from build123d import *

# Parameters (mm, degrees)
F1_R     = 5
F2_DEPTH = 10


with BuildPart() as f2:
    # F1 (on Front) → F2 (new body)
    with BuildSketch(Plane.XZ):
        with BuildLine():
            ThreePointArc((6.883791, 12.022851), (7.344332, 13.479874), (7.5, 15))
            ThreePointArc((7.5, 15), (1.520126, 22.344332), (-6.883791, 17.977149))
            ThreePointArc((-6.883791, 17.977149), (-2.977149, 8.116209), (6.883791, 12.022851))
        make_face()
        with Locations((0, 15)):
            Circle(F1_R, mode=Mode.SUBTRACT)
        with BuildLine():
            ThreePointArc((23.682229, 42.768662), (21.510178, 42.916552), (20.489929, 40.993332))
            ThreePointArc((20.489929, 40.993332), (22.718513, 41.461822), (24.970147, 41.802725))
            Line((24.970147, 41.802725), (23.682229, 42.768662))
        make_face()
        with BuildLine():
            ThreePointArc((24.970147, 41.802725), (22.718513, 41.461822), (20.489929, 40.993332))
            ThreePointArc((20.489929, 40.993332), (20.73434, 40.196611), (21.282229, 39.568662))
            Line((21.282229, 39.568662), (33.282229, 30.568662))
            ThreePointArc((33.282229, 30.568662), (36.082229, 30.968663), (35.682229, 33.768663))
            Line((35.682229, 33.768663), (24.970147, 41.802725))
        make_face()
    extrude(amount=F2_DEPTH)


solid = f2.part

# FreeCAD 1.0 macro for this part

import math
import FreeCAD as App
import Part
import Sketcher

V = App.Vector
Q = App.Units.Quantity

doc = App.newDocument("Part")
body = doc.addObject("PartDesign::Body", "Body")
body.AllowCompound = True

sketch1 = body.newObject("Sketcher::SketchObject", "Sketch")
sketch1.AttachmentSupport = (doc.getObject("XZ_Plane"), [""])
sketch1.MapMode = "FlatFace"
sketch1.addGeometry([
    Part.ArcOfCircle(Part.Circle(V(0, 15, 0), V(0, 0, 1), 7.5), math.radians(-23), math.radians(0)),
    Part.ArcOfCircle(Part.Circle(V(0, 15, 0), V(0, 0, 1), 7.5), math.radians(0), math.radians(157)),
    Part.ArcOfCircle(Part.Circle(V(0, 15, 0), V(0, 0, 1), 7.5), math.radians(157), math.radians(337)),
    Part.Circle(V(0, 15, 0), V(0, 0, 1), 5),
    Part.ArcOfCircle(Part.Circle(V(22.5, 41.2, 0), V(0, 0, 1), 2), math.radians(53), math.radians(185)),
    Part.ArcOfCircle(Part.Circle(V(22.5, 41.2, 0), V(0, 0, 1), 2), math.radians(-175), math.radians(-127)),
    Part.LineSegment(V(21.3, 39.6, 0), V(33.3, 30.6, 0)),
    Part.ArcOfCircle(Part.Circle(V(34.5, 32.2, 0), V(0, 0, 1), 2), math.radians(-127), math.radians(53)),
    Part.LineSegment(V(35.7, 33.8, 0), V(25, 41.8, 0)),
    Part.LineSegment(V(25, 41.8, 0), V(23.7, 42.8, 0)),
], False)
sketch1.addConstraint([
    Sketcher.Constraint("Tangent", 0, 2, 1, 1),
    Sketcher.Constraint("Tangent", 1, 2, 2, 1),
    Sketcher.Constraint("Tangent", 2, 2, 0, 1),
    Sketcher.Constraint("Tangent", 4, 2, 5, 1),
    Sketcher.Constraint("Tangent", 5, 2, 6, 1),
    Sketcher.Constraint("Tangent", 6, 2, 7, 1),
    Sketcher.Constraint("Tangent", 7, 2, 8, 1),
    Sketcher.Constraint("Coincident", 8, 2, 9, 1),
    Sketcher.Constraint("Tangent", 9, 2, 4, 1),
    Sketcher.Constraint("Coincident", 3, 3, 0, 3),
    Sketcher.Constraint("Equal", 5, 7),
    Sketcher.Constraint("PointOnObject", 1, 3, -2),
    Sketcher.Constraint("Parallel", 6, 8),
    Sketcher.Constraint("Parallel", 8, 9),
    Sketcher.Constraint("Horizontal", 3, 3, 0, 2),
    Sketcher.Constraint("Diameter", 3, Q("10 mm")),
    Sketcher.Constraint("Radius", 4, Q("2 mm")),
    Sketcher.Constraint("Radius", 1, Q("7.5 mm")),
    Sketcher.Constraint("Distance", 6, Q("15 mm")),
    Sketcher.Constraint("DistanceY", -1, 1, 1, 3, Q("15 mm")),
    Sketcher.Constraint("DistanceY", 7, 3, 5, 3, Q("9 mm")),
    Sketcher.Constraint("DistanceX", 4, 2, 4, 3, Q("1.992299 mm")),
    Sketcher.Constraint("DistanceX", -1, 1, 4, 3, Q("22.482228 mm")),
    Sketcher.Constraint("DistanceX", 1, 2, -1, 1, Q("6.883791 mm")),
    Sketcher.Constraint("DistanceX", -1, 1, 2, 2, Q("6.883791 mm")),
    Sketcher.Constraint("DistanceY", -1, 1, 6, 2, Q("30.568662 mm")),
    Sketcher.Constraint("DistanceY", 5, 3, 8, 2, Q("0.634062 mm")),
])
pad1 = body.newObject("PartDesign::Pad", "Pad")
pad1.Profile = sketch1
pad1.Length = 10

doc.recompute()
